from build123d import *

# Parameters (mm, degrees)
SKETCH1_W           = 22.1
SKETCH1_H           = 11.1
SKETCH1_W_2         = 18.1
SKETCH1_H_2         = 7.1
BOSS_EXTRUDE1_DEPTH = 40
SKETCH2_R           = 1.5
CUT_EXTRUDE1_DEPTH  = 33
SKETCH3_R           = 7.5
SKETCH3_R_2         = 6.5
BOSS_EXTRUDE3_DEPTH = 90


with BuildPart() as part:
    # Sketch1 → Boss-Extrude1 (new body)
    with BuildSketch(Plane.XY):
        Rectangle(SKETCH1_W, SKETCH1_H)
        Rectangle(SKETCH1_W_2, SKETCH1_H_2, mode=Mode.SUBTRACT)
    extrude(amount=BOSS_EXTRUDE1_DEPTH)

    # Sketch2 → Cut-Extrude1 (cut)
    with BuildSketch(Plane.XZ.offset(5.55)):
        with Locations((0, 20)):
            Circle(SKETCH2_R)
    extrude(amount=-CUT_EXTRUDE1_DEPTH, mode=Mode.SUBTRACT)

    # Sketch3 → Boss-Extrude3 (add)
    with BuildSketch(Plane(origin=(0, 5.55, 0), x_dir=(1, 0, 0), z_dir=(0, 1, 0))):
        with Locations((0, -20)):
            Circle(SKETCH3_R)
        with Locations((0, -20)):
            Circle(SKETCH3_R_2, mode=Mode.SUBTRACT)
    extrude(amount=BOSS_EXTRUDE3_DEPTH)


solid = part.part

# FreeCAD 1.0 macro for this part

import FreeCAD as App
import Part
import Sketcher


def add_polygon(sketch, points):
    """Adds a closed chain of lines whose ends are joined by coincident constraints."""
    first, n = sketch.GeometryCount, len(points)
    for a, b in zip(points, points[1:] + points[:1]):
        sketch.addGeometry(Part.LineSegment(App.Vector(*a, 0), App.Vector(*b, 0)), False)
    for i in range(n):
        sketch.addConstraint(Sketcher.Constraint("Coincident", first + i, 2, first + (i + 1) % n, 1))

doc = App.newDocument("Part")
body = doc.addObject("PartDesign::Body", "Body")

# Sketch on XY plane
sketch1 = doc.addObject("Sketcher::SketchObject", "Sketch")
body.addObject(sketch1)
sketch1.AttachmentSupport = (doc.XY_Plane, [""])
sketch1.MapMode = "FlatFace"
add_polygon(sketch1, [(-11, 6), (-11, -6), (11, -6), (11, 6)])  # lines 0-3
add_polygon(sketch1, [(9, -4), (-9, -4), (-9, 4), (9, 4)])  # lines 4-7
sketch1.addConstraint([
    Sketcher.Constraint("Vertical", 0),
    Sketcher.Constraint("Horizontal", 1),
    Sketcher.Constraint("Vertical", 2),
    Sketcher.Constraint("Horizontal", 3),
    Sketcher.Constraint("Horizontal", 4),
    Sketcher.Constraint("Vertical", 5),
    Sketcher.Constraint("Horizontal", 6),
    Sketcher.Constraint("Vertical", 7),
    Sketcher.Constraint("Symmetric", 0, 2, 2, 2, -1, 1),
    Sketcher.Constraint("Symmetric", 4, 2, 6, 2, -1, 1),
    Sketcher.Constraint("DistanceX", 1, 1, 1, 2, 22.1),
    Sketcher.Constraint("DistanceX", 4, 2, 4, 1, 18.1),
    Sketcher.Constraint("DistanceY", 0, 2, 0, 1, 11.1),
    Sketcher.Constraint("DistanceY", 5, 1, 5, 2, 7.1),
])
pad1 = doc.addObject("PartDesign::Pad", "Pad")
body.addObject(pad1)
pad1.Profile = sketch1
pad1.Length = 40

# Sketch on XZ plane
sketch2 = doc.addObject("Sketcher::SketchObject", "Sketch001")
body.addObject(sketch2)
sketch2.AttachmentSupport = (doc.XZ_Plane, [""])
sketch2.MapMode = "FlatFace"
sketch2.AttachmentOffset = App.Placement(App.Vector(0, 0, 5.55), App.Rotation())
sketch2.addGeometry(Part.Circle(App.Vector(0, 20, 0), App.Vector(0, 0, 1), 1.5), False)
sketch2.addConstraint([
    Sketcher.Constraint("PointOnObject", 0, 3, -2),
    Sketcher.Constraint("Diameter", 0, 3.0),
    Sketcher.Constraint("DistanceY", -1, 1, 0, 3, 20.0),
])
pocket1 = doc.addObject("PartDesign::Pocket", "Pocket")
body.addObject(pocket1)
pocket1.Profile = sketch2
pocket1.Length = 33

# Sketch on XZ plane
sketch3 = doc.addObject("Sketcher::SketchObject", "Sketch002")
body.addObject(sketch3)
sketch3.AttachmentSupport = (doc.XZ_Plane, [""])
sketch3.MapMode = "FlatFace"
sketch3.AttachmentOffset = App.Placement(App.Vector(0, 0, -5.55), App.Rotation())
sketch3.addGeometry([
    Part.Circle(App.Vector(0, 20, 0), App.Vector(0, 0, 1), 8),
    Part.Circle(App.Vector(0, 20, 0), App.Vector(0, 0, 1), 6),
], False)
sketch3.addConstraint([
    Sketcher.Constraint("Coincident", 1, 3, 0, 3),
    Sketcher.Constraint("PointOnObject", 0, 3, -2),
    Sketcher.Constraint("Diameter", 0, 15.0),
    Sketcher.Constraint("Diameter", 1, 13.0),
    Sketcher.Constraint("DistanceY", -1, 1, 0, 3, 20.0),
])
pad2 = doc.addObject("PartDesign::Pad", "Pad001")
body.addObject(pad2)
pad2.Profile = sketch3
pad2.Length = 90
pad2.Reversed = True

doc.recompute()
